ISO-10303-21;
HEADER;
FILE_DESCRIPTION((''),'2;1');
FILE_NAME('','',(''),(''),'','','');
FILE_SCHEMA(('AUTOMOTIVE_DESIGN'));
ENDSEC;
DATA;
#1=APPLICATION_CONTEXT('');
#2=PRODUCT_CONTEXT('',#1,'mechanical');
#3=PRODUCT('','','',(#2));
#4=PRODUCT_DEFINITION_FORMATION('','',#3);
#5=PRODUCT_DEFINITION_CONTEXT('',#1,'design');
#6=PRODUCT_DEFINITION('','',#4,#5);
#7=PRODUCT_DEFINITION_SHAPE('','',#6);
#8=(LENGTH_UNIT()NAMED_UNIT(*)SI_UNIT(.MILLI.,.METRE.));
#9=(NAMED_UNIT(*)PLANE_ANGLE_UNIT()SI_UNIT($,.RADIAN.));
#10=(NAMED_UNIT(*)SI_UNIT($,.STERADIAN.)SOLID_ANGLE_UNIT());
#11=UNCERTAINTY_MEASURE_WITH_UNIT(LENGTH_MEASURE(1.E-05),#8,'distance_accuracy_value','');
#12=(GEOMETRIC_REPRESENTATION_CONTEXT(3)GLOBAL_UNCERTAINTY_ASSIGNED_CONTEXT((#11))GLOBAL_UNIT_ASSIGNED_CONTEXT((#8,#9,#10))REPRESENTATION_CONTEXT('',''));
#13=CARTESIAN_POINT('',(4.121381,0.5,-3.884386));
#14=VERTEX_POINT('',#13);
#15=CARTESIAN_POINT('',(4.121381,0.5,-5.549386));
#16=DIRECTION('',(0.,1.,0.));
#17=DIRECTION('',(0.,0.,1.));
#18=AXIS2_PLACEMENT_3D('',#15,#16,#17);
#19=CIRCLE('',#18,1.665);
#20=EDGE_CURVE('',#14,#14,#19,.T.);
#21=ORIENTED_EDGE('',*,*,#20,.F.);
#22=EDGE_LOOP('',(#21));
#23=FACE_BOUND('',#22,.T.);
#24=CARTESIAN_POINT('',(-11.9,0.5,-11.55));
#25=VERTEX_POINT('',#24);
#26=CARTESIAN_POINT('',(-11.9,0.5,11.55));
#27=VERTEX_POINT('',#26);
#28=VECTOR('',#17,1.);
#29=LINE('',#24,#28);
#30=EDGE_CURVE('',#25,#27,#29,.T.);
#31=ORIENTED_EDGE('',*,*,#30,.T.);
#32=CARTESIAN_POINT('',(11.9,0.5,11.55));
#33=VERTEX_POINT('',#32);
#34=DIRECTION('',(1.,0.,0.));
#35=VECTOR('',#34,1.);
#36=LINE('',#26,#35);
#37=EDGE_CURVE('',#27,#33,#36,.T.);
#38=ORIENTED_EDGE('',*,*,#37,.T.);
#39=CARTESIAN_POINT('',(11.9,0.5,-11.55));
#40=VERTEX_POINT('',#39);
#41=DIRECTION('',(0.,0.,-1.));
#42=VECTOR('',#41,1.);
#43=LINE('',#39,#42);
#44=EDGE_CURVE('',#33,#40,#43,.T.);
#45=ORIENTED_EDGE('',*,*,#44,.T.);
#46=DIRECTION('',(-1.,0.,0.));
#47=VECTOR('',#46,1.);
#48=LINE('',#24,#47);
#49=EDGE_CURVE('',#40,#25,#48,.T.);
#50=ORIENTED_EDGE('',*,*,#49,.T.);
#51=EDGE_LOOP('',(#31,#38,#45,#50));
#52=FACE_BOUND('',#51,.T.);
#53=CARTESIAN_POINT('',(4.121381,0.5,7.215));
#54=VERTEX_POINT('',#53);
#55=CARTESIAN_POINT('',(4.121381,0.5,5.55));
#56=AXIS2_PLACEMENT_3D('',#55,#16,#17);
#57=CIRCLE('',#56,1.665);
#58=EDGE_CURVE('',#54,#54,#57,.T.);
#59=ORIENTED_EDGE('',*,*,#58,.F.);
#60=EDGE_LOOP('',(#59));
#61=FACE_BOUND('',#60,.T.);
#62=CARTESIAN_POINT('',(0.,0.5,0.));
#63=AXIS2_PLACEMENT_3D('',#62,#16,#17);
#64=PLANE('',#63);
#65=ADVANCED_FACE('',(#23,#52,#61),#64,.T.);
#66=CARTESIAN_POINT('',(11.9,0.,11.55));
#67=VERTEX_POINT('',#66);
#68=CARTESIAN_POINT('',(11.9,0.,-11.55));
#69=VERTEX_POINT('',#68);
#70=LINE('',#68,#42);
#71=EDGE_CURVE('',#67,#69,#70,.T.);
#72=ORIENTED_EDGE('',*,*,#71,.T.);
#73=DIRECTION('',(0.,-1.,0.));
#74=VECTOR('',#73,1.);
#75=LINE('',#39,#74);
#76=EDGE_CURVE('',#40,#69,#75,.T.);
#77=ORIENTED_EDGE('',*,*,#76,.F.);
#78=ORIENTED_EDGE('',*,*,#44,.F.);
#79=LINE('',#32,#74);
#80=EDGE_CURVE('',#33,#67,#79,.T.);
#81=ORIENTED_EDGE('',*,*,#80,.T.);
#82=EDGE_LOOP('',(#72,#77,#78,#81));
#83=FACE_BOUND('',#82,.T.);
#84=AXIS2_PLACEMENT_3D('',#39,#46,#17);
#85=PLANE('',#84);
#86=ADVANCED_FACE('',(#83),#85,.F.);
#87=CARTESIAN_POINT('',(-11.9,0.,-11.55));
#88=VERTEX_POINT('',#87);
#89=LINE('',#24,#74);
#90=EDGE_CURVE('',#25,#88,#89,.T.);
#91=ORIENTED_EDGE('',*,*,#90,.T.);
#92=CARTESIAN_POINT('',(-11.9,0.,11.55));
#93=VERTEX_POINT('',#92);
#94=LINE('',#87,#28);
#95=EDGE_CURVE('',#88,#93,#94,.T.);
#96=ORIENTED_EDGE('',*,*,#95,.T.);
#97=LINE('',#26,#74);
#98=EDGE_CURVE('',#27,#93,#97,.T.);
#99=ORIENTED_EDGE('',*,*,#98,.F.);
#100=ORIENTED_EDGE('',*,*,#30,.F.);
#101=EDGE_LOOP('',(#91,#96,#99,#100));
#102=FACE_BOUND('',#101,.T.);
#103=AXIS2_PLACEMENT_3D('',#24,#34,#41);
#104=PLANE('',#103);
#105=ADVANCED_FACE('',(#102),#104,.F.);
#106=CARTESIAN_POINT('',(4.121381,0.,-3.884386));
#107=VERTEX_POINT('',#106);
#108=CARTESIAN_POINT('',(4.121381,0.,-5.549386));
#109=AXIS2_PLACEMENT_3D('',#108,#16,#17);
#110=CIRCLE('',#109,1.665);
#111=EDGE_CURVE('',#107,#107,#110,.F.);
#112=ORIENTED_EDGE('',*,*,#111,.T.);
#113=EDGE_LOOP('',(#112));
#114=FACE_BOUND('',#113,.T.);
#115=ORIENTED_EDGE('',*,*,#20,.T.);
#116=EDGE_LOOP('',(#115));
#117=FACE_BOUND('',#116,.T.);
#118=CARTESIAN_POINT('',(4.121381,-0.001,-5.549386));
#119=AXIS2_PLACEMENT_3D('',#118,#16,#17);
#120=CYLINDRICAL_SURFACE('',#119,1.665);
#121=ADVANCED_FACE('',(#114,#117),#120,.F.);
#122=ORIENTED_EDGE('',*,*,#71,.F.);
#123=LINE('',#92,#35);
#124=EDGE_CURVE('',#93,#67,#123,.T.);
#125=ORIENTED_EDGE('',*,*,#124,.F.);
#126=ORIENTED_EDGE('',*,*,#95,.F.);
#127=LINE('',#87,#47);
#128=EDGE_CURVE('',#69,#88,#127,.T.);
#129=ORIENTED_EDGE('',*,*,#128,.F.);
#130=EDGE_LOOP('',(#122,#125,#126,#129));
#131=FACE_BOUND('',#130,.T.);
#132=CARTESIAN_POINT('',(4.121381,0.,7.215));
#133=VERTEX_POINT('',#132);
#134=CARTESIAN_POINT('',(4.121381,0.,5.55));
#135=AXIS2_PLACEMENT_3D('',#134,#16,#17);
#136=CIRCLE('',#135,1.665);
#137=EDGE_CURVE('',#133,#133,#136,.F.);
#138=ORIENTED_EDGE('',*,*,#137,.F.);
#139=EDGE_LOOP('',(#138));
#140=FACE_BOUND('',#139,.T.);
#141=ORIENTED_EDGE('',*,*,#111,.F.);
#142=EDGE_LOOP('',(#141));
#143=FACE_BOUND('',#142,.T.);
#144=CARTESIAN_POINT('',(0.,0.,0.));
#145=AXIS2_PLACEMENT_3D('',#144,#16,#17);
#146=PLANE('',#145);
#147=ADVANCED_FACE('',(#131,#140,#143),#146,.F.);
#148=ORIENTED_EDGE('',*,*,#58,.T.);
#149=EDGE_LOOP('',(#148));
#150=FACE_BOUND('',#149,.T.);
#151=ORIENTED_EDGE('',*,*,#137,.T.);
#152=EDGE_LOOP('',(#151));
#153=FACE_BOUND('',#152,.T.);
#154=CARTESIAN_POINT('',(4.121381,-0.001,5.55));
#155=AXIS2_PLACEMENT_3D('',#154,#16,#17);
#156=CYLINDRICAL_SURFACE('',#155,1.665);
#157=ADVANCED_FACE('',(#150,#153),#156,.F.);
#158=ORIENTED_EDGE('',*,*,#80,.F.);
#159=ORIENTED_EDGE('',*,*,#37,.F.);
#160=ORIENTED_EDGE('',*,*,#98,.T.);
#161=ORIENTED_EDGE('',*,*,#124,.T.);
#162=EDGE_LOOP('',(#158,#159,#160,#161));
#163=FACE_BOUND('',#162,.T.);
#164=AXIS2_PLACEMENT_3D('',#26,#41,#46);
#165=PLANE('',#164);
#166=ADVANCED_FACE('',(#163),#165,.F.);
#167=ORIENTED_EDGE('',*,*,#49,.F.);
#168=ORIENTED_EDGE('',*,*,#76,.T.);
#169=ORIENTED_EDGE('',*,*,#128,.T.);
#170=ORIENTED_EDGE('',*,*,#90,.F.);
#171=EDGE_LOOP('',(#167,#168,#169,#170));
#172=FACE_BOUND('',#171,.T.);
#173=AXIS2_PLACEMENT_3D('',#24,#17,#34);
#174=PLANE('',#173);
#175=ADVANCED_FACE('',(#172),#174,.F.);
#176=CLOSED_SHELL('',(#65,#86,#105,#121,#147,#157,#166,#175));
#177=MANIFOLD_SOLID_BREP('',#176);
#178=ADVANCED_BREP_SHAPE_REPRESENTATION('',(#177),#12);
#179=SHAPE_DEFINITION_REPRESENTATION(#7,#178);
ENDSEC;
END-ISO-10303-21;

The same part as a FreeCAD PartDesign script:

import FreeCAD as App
import Part
import Sketcher

V = App.Vector


def add_polygon(sketch, points):
    """Adds a closed chain of lines whose ends are joined by coincident constraints."""
    first, n = sketch.GeometryCount, len(points)
    for a, b in zip(points, points[1:] + points[:1]):
        sketch.addGeometry(Part.LineSegment(App.Vector(*a, 0), App.Vector(*b, 0)), False)
    for i in range(n):
        sketch.addConstraint(Sketcher.Constraint("Coincident", first + i, 2, first + (i + 1) % n, 1))

doc = App.newDocument("Part")
body = doc.addObject("PartDesign::Body", "Body")

# Sketch on XZ plane
sketch1 = body.newObject("Sketcher::SketchObject", "Sketch")
sketch1.AttachmentSupport = (doc.getObject("XZ_Plane"), [""])
sketch1.MapMode = "FlatFace"
add_polygon(sketch1, [(-11.9, -11.55), (-11.9, 11.55), (11.9, 11.55), (11.9, -11.55)])  # lines 0-3
sketch1.addConstraint([
    Sketcher.Constraint("Vertical", 0),
    Sketcher.Constraint("Horizontal", 1),
    Sketcher.Constraint("Vertical", 2),
    Sketcher.Constraint("Horizontal", 3),
    Sketcher.Constraint("Symmetric", 0, 2, 2, 2, -1, 1),
    Sketcher.Constraint("DistanceX", 1, 1, 1, 2, 23.8),
    Sketcher.Constraint("DistanceY", 0, 1, 0, 2, 23.1),
])
pad1 = body.newObject("PartDesign::Pad", "Pad")
pad1.Profile = sketch1
pad1.Length = 0.5
pad1.Reversed = True

# Sketch on XZ plane
sketch2 = body.newObject("Sketcher::SketchObject", "Sketch001")
sketch2.AttachmentSupport = (doc.getObject("XZ_Plane"), [""])
sketch2.MapMode = "FlatFace"
sketch2.AttachmentOffset = App.Placement(V(0, 0, -0.5), App.Rotation())
sketch2.addGeometry(Part.Circle(V(4.121381, -5.549386, 0), V(0, 0, 1), 1.665), False)
sketch2.addConstraint([
    Sketcher.Constraint("Diameter", 0, 3.33),
    Sketcher.Constraint("DistanceX", -1, 1, 0, 3, 4.121381),
    Sketcher.Constraint("DistanceY", 0, 3, -1, 1, 5.549386),
])
pocket1 = body.newObject("PartDesign::Pocket", "Pocket")
pocket1.Profile = sketch2
pocket1.Type = "UpToFirst"
pocket1.Reversed = True

# Sketch on XZ plane
sketch3 = body.newObject("Sketcher::SketchObject", "Sketch002")
sketch3.AttachmentSupport = (doc.getObject("XZ_Plane"), [""])
sketch3.MapMode = "FlatFace"
sketch3.AttachmentOffset = App.Placement(V(0, 0, -0.5), App.Rotation())
sketch3.addGeometry(Part.Circle(V(4.121381, 5.55, 0), V(0, 0, 1), 1.665), False)
sketch3.addConstraint([
    Sketcher.Constraint("Diameter", 0, 3.33),
    Sketcher.Constraint("DistanceY", -1, 1, 0, 3, 5.55),
    Sketcher.Constraint("DistanceX", -1, 1, 0, 3, 4.121381),
])
pocket2 = body.newObject("PartDesign::Pocket", "Pocket001")
pocket2.Profile = sketch3
pocket2.Type = "UpToFirst"
pocket2.Reversed = True

doc.recompute()
